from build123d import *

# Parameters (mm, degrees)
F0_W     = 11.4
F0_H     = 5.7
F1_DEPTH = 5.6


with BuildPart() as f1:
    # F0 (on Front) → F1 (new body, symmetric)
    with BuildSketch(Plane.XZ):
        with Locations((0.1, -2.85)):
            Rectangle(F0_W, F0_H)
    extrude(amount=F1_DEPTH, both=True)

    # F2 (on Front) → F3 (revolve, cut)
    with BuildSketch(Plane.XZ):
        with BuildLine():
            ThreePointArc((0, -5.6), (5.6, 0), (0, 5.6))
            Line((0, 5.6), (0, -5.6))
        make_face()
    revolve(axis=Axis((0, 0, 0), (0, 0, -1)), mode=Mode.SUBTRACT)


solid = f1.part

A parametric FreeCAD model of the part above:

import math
import FreeCAD as App
import Part
import Sketcher
from FreeCAD import Vector
Q = App.Units.Quantity


def add_polygon(sketch, points):
    """Adds a closed chain of lines whose ends are joined by coincident constraints."""
    first, n = sketch.GeometryCount, len(points)
    for a, b in zip(points, points[1:] + points[:1]):
        sketch.addGeometry(Part.LineSegment(App.Vector(*a, 0), App.Vector(*b, 0)), False)
    for i in range(n):
        sketch.addConstraint(Sketcher.Constraint("Coincident", first + i, 2, first + (i + 1) % n, 1))

doc = App.newDocument("Part")
params = doc.addObject("Spreadsheet::Sheet", "Params")
for row, (alias, value) in enumerate([
    ("sketch1_width", "11.4 mm"),
    ("sketch1_height", "5.7 mm"),
    ("pad1_length", "11.2 mm"),
    ("sketch2_radius", "5.6 mm"),
    ("groove_angle", "360 deg"),
], start=1):
    params.set(f"A{row}", alias)
    params.set(f"B{row}", "=" + value)
    params.setAlias(f"B{row}", alias)

body = doc.addObject("PartDesign::Body", "Body")

# Sketch on XZ plane
sketch1 = body.newObject("Sketcher::SketchObject", "Sketch")
sketch1.AttachmentSupport = (doc.getObject("XZ_Plane"), [""])
sketch1.MapMode = "FlatFace"
add_polygon(sketch1, [(-6, 0), (-6, -6), (6, -6), (6, 0)])  # lines 0-3
sketch1.addConstraint([
    Sketcher.Constraint("Vertical", 0),
    Sketcher.Constraint("Horizontal", 1),
    Sketcher.Constraint("Vertical", 2),
    Sketcher.Constraint("Horizontal", 3),
    Sketcher.Constraint("PointOnObject", 2, 2, -1),
    Sketcher.Constraint("DistanceX", 1, 1, 1, 2, Q("11.4 mm")),
    Sketcher.Constraint("DistanceY", 0, 2, 0, 1, Q("5.7 mm")),
    Sketcher.Constraint("DistanceX", 0, 2, -1, 1, Q("5.6 mm")),
])
sketch1.setExpression("Constraints[9]", "Params.sketch1_width")
sketch1.setExpression("Constraints[10]", "Params.sketch1_height")
pad1 = body.newObject("PartDesign::Pad", "Pad")
pad1.Profile = sketch1
pad1.setExpression("Length", "Params.pad1_length")
pad1.Midplane = True

# Sketch on XZ plane
sketch2 = body.newObject("Sketcher::SketchObject", "Sketch001")
sketch2.AttachmentSupport = (doc.getObject("XZ_Plane"), [""])
sketch2.MapMode = "FlatFace"
sketch2.addGeometry([
    Part.ArcOfCircle(Part.Circle(Vector(0, 0, 0), Vector(0, 0, 1), 6), math.radians(-90), math.radians(90)),
    Part.LineSegment(Vector(0, 6, 0), Vector(0, -6, 0)),
], False)
sketch2.addConstraint([
    Sketcher.Constraint("Coincident", 0, 1, 1, 2),
    Sketcher.Constraint("Coincident", 1, 1, 0, 2),
    Sketcher.Constraint("Vertical", 1),
    Sketcher.Constraint("Coincident", 0, 3, -1, 1),
    Sketcher.Constraint("PointOnObject", 0, 1, -2),
    Sketcher.Constraint("Radius", 0, Q("5.6 mm")),
])
sketch2.setExpression("Constraints[5]", "Params.sketch2_radius")
groove = body.newObject("PartDesign::Groove", "Groove")
groove.Profile = sketch2
groove.ReferenceAxis = (sketch2, ["V_Axis"])
groove.setExpression("Angle", "Params.groove_angle")

doc.recompute()
